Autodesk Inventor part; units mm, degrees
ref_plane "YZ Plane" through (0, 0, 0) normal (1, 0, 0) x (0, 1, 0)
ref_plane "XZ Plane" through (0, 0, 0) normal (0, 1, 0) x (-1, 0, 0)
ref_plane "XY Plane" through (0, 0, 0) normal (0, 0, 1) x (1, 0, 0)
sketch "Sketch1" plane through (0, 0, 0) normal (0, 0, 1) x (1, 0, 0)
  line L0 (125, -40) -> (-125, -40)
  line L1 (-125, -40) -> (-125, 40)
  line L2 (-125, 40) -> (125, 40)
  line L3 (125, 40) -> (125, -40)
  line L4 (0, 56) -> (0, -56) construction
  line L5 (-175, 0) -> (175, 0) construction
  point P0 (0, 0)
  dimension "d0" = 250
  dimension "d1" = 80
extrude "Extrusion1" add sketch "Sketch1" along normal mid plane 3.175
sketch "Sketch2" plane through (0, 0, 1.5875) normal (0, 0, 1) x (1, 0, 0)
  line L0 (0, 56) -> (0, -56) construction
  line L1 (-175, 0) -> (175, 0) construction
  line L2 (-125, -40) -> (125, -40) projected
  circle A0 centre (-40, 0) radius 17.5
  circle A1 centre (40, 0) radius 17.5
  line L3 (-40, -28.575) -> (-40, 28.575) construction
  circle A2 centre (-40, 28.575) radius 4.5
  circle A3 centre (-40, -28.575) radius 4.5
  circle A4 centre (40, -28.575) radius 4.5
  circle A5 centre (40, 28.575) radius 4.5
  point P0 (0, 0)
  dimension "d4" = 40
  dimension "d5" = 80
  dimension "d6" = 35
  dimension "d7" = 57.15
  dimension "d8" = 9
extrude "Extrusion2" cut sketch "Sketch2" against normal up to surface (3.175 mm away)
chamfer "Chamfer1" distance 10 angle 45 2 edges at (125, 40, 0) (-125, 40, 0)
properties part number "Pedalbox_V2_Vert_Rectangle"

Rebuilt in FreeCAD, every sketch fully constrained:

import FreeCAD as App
import Part
import Sketcher
Q = App.Units.Quantity


def edges_at(feature, points):
    """Names of the edges that pass closest to the given points."""
    edges = feature.Shape.Edges
    near = lambda p: min(range(len(edges)), key=lambda i: edges[i].distToShape(Part.Vertex(*p))[0])
    return sorted({f"Edge{near(p) + 1}" for p in points})

doc = App.newDocument("Part")
body = doc.addObject("PartDesign::Body", "Body")

sketch1 = body.newObject("Sketcher::SketchObject", "Sketch")
sketch1.AttachmentSupport = (doc.getObject("XY_Plane"), [""])
sketch1.MapMode = "FlatFace"
sketch1.addGeometry(Part.LineSegment(App.Vector(-125, -40, 0), App.Vector(125, -40, 0)), False)
sketch1.addGeometry(Part.LineSegment(App.Vector(125, -40, 0), App.Vector(125, 40, 0)), False)
sketch1.addGeometry(Part.LineSegment(App.Vector(125, 40, 0), App.Vector(-125, 40, 0)), False)
sketch1.addGeometry(Part.LineSegment(App.Vector(-125, 40, 0), App.Vector(-125, -40, 0)), False)
sketch1.addConstraint(Sketcher.Constraint("Coincident", 0, 2, 1, 1))
sketch1.addConstraint(Sketcher.Constraint("Coincident", 1, 2, 2, 1))
sketch1.addConstraint(Sketcher.Constraint("Coincident", 2, 2, 3, 1))
sketch1.addConstraint(Sketcher.Constraint("Coincident", 3, 2, 0, 1))
sketch1.addConstraint(Sketcher.Constraint("Horizontal", 0))
sketch1.addConstraint(Sketcher.Constraint("Vertical", 1))
sketch1.addConstraint(Sketcher.Constraint("Horizontal", 2))
sketch1.addConstraint(Sketcher.Constraint("Vertical", 3))
sketch1.addConstraint(Sketcher.Constraint("Symmetric", 0, 2, 2, 2, -1, 1))
sketch1.addConstraint(Sketcher.Constraint("DistanceX", 0, 1, 0, 2, Q("250 mm")))
sketch1.addConstraint(Sketcher.Constraint("DistanceY", 1, 1, 1, 2, Q("80 mm")))
pad1 = body.newObject("PartDesign::Pad", "Pad")
pad1.Profile = sketch1
pad1.Length = 3.175
pad1.Midplane = True

sketch2 = body.newObject("Sketcher::SketchObject", "Sketch001")
sketch2.AttachmentSupport = (doc.getObject("XY_Plane"), [""])
sketch2.MapMode = "FlatFace"
sketch2.AttachmentOffset = App.Placement(App.Vector(0, 0, 1.5875), App.Rotation())
sketch2.addGeometry(Part.Circle(App.Vector(-40, 0, 0), App.Vector(0, 0, 1), 17.5), False)
sketch2.addGeometry(Part.Circle(App.Vector(40, 0, 0), App.Vector(0, 0, 1), 17.5), False)
sketch2.addGeometry(Part.Circle(App.Vector(-40, 28.575, 0), App.Vector(0, 0, 1), 4.5), False)
sketch2.addGeometry(Part.Circle(App.Vector(-40, -28.575, 0), App.Vector(0, 0, 1), 4.5), False)
sketch2.addGeometry(Part.Circle(App.Vector(40, -28.575, 0), App.Vector(0, 0, 1), 4.5), False)
sketch2.addGeometry(Part.Circle(App.Vector(40, 28.575, 0), App.Vector(0, 0, 1), 4.5), False)
sketch2.addConstraint(Sketcher.Constraint("Equal", 0, 1))
sketch2.addConstraint(Sketcher.Constraint("Equal", 2, 3))
sketch2.addConstraint(Sketcher.Constraint("Equal", 3, 4))
sketch2.addConstraint(Sketcher.Constraint("Equal", 4, 5))
sketch2.addConstraint(Sketcher.Constraint("Symmetric", 0, 3, 1, 3, -1, 1))
sketch2.addConstraint(Sketcher.Constraint("Symmetric", 2, 3, 4, 3, -1, 1))
sketch2.addConstraint(Sketcher.Constraint("Symmetric", 3, 3, 5, 3, -1, 1))
sketch2.addConstraint(Sketcher.Constraint("Symmetric", 3, 3, 4, 3, -2))
sketch2.addConstraint(Sketcher.Constraint("PointOnObject", 0, 3, -1))
sketch2.addConstraint(Sketcher.Constraint("Vertical", 0, 3, 2, 3))
sketch2.addConstraint(Sketcher.Constraint("Diameter", 0, Q("35 mm")))
sketch2.addConstraint(Sketcher.Constraint("Diameter", 2, Q("9 mm")))
sketch2.addConstraint(Sketcher.Constraint("DistanceX", 0, 3, -1, 1, Q("40 mm")))
sketch2.addConstraint(Sketcher.Constraint("DistanceY", 3, 3, 2, 3, Q("57.15 mm")))
pocket1 = body.newObject("PartDesign::Pocket", "Pocket")
pocket1.Profile = sketch2
pocket1.Length = 3.175
doc.recompute()

chamfer = body.newObject("PartDesign::Chamfer", "Chamfer")
chamfer.Base = (pocket1, edges_at(pocket1, [(125, 40, 0), (-125, 40, 0)]))
chamfer.Size = 10

doc.recompute()
